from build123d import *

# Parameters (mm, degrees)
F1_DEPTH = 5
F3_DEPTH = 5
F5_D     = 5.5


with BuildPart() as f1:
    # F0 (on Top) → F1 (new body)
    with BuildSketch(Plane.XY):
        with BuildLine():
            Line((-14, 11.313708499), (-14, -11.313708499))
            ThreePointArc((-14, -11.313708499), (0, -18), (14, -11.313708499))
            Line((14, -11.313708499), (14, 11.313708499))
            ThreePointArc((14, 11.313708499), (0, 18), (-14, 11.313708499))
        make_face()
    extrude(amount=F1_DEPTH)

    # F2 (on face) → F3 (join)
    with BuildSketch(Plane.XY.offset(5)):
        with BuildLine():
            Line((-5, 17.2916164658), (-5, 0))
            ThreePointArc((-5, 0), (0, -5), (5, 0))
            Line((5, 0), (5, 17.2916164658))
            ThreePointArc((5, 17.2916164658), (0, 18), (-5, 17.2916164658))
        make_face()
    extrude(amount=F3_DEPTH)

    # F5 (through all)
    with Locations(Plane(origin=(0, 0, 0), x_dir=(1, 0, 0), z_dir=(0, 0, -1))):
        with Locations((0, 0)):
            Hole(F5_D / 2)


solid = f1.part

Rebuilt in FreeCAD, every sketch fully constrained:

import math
import FreeCAD as App
import Part
import Sketcher

doc = App.newDocument("Part")
body = doc.addObject("PartDesign::Body", "Body")

# Sketch on XY plane
sketch1 = body.newObject("Sketcher::SketchObject", "Sketch")
sketch1.AttachmentSupport = (doc.getObject("XY_Plane"), [""])
sketch1.MapMode = "FlatFace"
sketch1.addGeometry(Part.LineSegment(App.Vector(-14, 11.313708, 0), App.Vector(-14, -11.313708, 0)), False)
sketch1.addGeometry(Part.ArcOfCircle(Part.Circle(App.Vector(0, 0, 0), App.Vector(0, 0, 1), 18), math.radians(-141.057559), math.radians(-38.942441)), False)
sketch1.addGeometry(Part.LineSegment(App.Vector(14, -11.313708, 0), App.Vector(14, 11.313708, 0)), False)
sketch1.addGeometry(Part.ArcOfCircle(Part.Circle(App.Vector(0, 0, 0), App.Vector(0, 0, 1), 18), math.radians(38.942441), math.radians(141.057559)), False)
sketch1.addConstraint(Sketcher.Constraint("Coincident", 0, 2, 1, 1))
sketch1.addConstraint(Sketcher.Constraint("Coincident", 1, 2, 2, 1))
sketch1.addConstraint(Sketcher.Constraint("Coincident", 2, 2, 3, 1))
sketch1.addConstraint(Sketcher.Constraint("Coincident", 3, 2, 0, 1))
sketch1.addConstraint(Sketcher.Constraint("Vertical", 0))
sketch1.addConstraint(Sketcher.Constraint("Vertical", 2))
sketch1.addConstraint(Sketcher.Constraint("Coincident", 1, 3, -1, 1))
sketch1.addConstraint(Sketcher.Constraint("Coincident", 3, 3, -1, 1))
sketch1.addConstraint(Sketcher.Constraint("Equal", 1, 3))
sketch1.addConstraint(Sketcher.Constraint("Horizontal", 0, 2, 1, 2))
sketch1.addConstraint(Sketcher.Constraint("Radius", 1, 18.0))
sketch1.addConstraint(Sketcher.Constraint("DistanceX", 0, 2, -1, 1, 14.0))
pad1 = body.newObject("PartDesign::Pad", "Pad")
pad1.Profile = sketch1
pad1.Length = 5

# Sketch on XY plane
sketch2 = body.newObject("Sketcher::SketchObject", "Sketch001")
sketch2.AttachmentSupport = (doc.getObject("XY_Plane"), [""])
sketch2.MapMode = "FlatFace"
sketch2.AttachmentOffset = App.Placement(App.Vector(0, 0, 5), App.Rotation())
sketch2.addGeometry(Part.LineSegment(App.Vector(-5, 17.291616, 0), App.Vector(-5, 0, 0)), False)
sketch2.addGeometry(Part.ArcOfCircle(Part.Circle(App.Vector(0, 0, 0), App.Vector(0, 0, 1), 5), math.radians(180), math.radians(360)), False)
sketch2.addGeometry(Part.LineSegment(App.Vector(5, 0, 0), App.Vector(5, 17.291616, 0)), False)
sketch2.addGeometry(Part.ArcOfCircle(Part.Circle(App.Vector(0, 0, 0), App.Vector(0, 0, 1), 18), math.radians(73.87238), math.radians(106.12762)), False)
sketch2.addConstraint(Sketcher.Constraint("Tangent", 0, 2, 1, 1))
sketch2.addConstraint(Sketcher.Constraint("Tangent", 1, 2, 2, 1))
sketch2.addConstraint(Sketcher.Constraint("Coincident", 2, 2, 3, 1))
sketch2.addConstraint(Sketcher.Constraint("Coincident", 3, 2, 0, 1))
sketch2.addConstraint(Sketcher.Constraint("Vertical", 0))
sketch2.addConstraint(Sketcher.Constraint("Vertical", 2))
sketch2.addConstraint(Sketcher.Constraint("Coincident", 1, 3, -1, 1))
sketch2.addConstraint(Sketcher.Constraint("Coincident", 3, 3, -1, 1))
sketch2.addConstraint(Sketcher.Constraint("Radius", 1, 5.0))
sketch2.addConstraint(Sketcher.Constraint("Radius", 3, 18.0))
pad2 = body.newObject("PartDesign::Pad", "Pad001")
pad2.Profile = sketch2
pad2.Length = 5

# Sketch on XY plane
sketch3 = body.newObject("Sketcher::SketchObject", "Sketch002")
sketch3.AttachmentSupport = (doc.getObject("XY_Plane"), [""])
sketch3.MapMode = "FlatFace"
sketch3.addGeometry(Part.Circle(App.Vector(0, 0, 0), App.Vector(0, 0, 1), 2.75), False)
sketch3.addConstraint(Sketcher.Constraint("Coincident", 0, 3, -1, 1))
sketch3.addConstraint(Sketcher.Constraint("Diameter", 0, 5.5))
doc.recompute()
hole = body.newObject("PartDesign::Hole", "Hole")
hole.Profile = sketch3
hole.ThreadType = "None"
hole.Diameter = 5.5
hole.DepthType = "ThroughAll"
hole.Reversed = True

doc.recompute()
